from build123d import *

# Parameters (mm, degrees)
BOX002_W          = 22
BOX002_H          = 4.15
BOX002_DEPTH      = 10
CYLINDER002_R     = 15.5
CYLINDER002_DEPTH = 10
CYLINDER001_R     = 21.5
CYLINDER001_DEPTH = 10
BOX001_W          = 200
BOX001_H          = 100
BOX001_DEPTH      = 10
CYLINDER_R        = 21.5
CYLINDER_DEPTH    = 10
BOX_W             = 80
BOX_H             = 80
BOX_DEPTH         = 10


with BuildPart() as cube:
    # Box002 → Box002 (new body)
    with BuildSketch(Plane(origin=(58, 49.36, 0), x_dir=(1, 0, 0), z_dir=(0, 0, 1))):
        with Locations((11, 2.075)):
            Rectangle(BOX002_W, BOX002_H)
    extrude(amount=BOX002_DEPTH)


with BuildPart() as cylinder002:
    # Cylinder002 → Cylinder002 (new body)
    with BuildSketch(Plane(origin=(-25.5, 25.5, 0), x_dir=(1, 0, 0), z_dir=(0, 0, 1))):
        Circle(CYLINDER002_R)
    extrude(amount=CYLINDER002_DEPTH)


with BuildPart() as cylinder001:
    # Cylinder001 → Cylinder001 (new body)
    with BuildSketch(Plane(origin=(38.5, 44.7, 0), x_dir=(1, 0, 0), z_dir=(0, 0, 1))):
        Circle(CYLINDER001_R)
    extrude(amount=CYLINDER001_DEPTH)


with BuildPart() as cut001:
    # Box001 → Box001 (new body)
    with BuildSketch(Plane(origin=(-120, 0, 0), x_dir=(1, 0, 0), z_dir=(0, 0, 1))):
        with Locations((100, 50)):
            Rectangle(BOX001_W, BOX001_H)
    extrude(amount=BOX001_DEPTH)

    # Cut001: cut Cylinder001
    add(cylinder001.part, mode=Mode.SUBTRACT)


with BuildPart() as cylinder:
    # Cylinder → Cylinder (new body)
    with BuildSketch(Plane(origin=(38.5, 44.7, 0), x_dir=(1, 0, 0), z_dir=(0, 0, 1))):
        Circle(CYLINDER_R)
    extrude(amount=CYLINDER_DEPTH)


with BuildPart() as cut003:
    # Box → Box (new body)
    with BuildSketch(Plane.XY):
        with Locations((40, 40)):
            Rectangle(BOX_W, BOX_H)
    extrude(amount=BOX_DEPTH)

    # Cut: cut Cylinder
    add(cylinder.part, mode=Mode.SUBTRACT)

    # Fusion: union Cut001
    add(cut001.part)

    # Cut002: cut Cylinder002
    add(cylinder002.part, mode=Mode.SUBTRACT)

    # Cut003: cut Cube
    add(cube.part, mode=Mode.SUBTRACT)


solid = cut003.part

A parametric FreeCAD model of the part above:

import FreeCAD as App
import Part
import Sketcher
Q = App.Units.Quantity

doc = App.newDocument("Part")
body = doc.addObject("PartDesign::Body", "Body")

# Sketch on XY plane
sketch1 = body.newObject("Sketcher::SketchObject", "Sketch")
sketch1.AttachmentSupport = (doc.getObject("XY_Plane"), [""])
sketch1.MapMode = "FlatFace"
sketch1.addGeometry(Part.LineSegment(App.Vector(58, 53.5, 0), App.Vector(58, 49.4, 0)), False)
sketch1.addGeometry(Part.LineSegment(App.Vector(58, 49.4, 0), App.Vector(80, 49.4, 0)), False)
sketch1.addGeometry(Part.LineSegment(App.Vector(80, 49.4, 0), App.Vector(80, 53.5, 0)), False)
sketch1.addGeometry(Part.LineSegment(App.Vector(80, 53.5, 0), App.Vector(58, 53.5, 0)), False)
sketch1.addConstraint(Sketcher.Constraint("Coincident", 0, 2, 1, 1))
sketch1.addConstraint(Sketcher.Constraint("Coincident", 1, 2, 2, 1))
sketch1.addConstraint(Sketcher.Constraint("Coincident", 2, 2, 3, 1))
sketch1.addConstraint(Sketcher.Constraint("Coincident", 3, 2, 0, 1))
sketch1.addConstraint(Sketcher.Constraint("Vertical", 0))
sketch1.addConstraint(Sketcher.Constraint("Horizontal", 1))
sketch1.addConstraint(Sketcher.Constraint("Vertical", 2))
sketch1.addConstraint(Sketcher.Constraint("Horizontal", 3))
sketch1.addConstraint(Sketcher.Constraint("DistanceX", 1, 1, 1, 2, Q("22 mm")))
sketch1.addConstraint(Sketcher.Constraint("DistanceX", -1, 1, 0, 2, Q("58 mm")))
sketch1.addConstraint(Sketcher.Constraint("DistanceY", 0, 2, 0, 1, Q("4.15 mm")))
sketch1.addConstraint(Sketcher.Constraint("DistanceY", -1, 1, 0, 2, Q("49.36 mm")))
pad1 = body.newObject("PartDesign::Pad", "Pad")
pad1.Profile = sketch1
pad1.Length = 10
body2 = doc.addObject("PartDesign::Body", "Body001")

# Sketch on XY plane
sketch2 = body2.newObject("Sketcher::SketchObject", "Sketch001")
sketch2.AttachmentSupport = (doc.getObject("XY_Plane001"), [""])
sketch2.MapMode = "FlatFace"
sketch2.addGeometry(Part.Circle(App.Vector(-26, 26, 0), App.Vector(0, 0, 1), 16), False)
sketch2.addConstraint(Sketcher.Constraint("Diameter", 0, Q("31 mm")))
sketch2.addConstraint(Sketcher.Constraint("DistanceX", 0, 3, -1, 1, Q("25.5 mm")))
sketch2.addConstraint(Sketcher.Constraint("DistanceY", -1, 1, 0, 3, Q("25.5 mm")))
pad2 = body2.newObject("PartDesign::Pad", "Pad001")
pad2.Profile = sketch2
pad2.Length = 10
body3 = doc.addObject("PartDesign::Body", "Body002")

# Sketch on XY plane
sketch3 = body3.newObject("Sketcher::SketchObject", "Sketch002")
sketch3.AttachmentSupport = (doc.getObject("XY_Plane002"), [""])
sketch3.MapMode = "FlatFace"
sketch3.addGeometry(Part.Circle(App.Vector(38, 45, 0), App.Vector(0, 0, 1), 22), False)
sketch3.addConstraint(Sketcher.Constraint("Diameter", 0, Q("43 mm")))
sketch3.addConstraint(Sketcher.Constraint("DistanceX", -1, 1, 0, 3, Q("38.5 mm")))
sketch3.addConstraint(Sketcher.Constraint("DistanceY", -1, 1, 0, 3, Q("44.7 mm")))
pad3 = body3.newObject("PartDesign::Pad", "Pad002")
pad3.Profile = sketch3
pad3.Length = 10
body4 = doc.addObject("PartDesign::Body", "Body003")

# Sketch on XY plane
sketch4 = body4.newObject("Sketcher::SketchObject", "Sketch003")
sketch4.AttachmentSupport = (doc.getObject("XY_Plane003"), [""])
sketch4.MapMode = "FlatFace"
sketch4.addGeometry(Part.LineSegment(App.Vector(-120, 100, 0), App.Vector(-120, 0, 0)), False)
sketch4.addGeometry(Part.LineSegment(App.Vector(-120, 0, 0), App.Vector(80, 0, 0)), False)
sketch4.addGeometry(Part.LineSegment(App.Vector(80, 0, 0), App.Vector(80, 100, 0)), False)
sketch4.addGeometry(Part.LineSegment(App.Vector(80, 100, 0), App.Vector(-120, 100, 0)), False)
sketch4.addConstraint(Sketcher.Constraint("Coincident", 0, 2, 1, 1))
sketch4.addConstraint(Sketcher.Constraint("Coincident", 1, 2, 2, 1))
sketch4.addConstraint(Sketcher.Constraint("Coincident", 2, 2, 3, 1))
sketch4.addConstraint(Sketcher.Constraint("Coincident", 3, 2, 0, 1))
sketch4.addConstraint(Sketcher.Constraint("Vertical", 0))
sketch4.addConstraint(Sketcher.Constraint("Horizontal", 1))
sketch4.addConstraint(Sketcher.Constraint("Vertical", 2))
sketch4.addConstraint(Sketcher.Constraint("Horizontal", 3))
sketch4.addConstraint(Sketcher.Constraint("PointOnObject", 0, 2, -1))
sketch4.addConstraint(Sketcher.Constraint("DistanceX", 1, 1, 1, 2, Q("200 mm")))
sketch4.addConstraint(Sketcher.Constraint("DistanceY", 0, 2, 0, 1, Q("100 mm")))
sketch4.addConstraint(Sketcher.Constraint("DistanceX", 0, 2, -1, 1, Q("120 mm")))
pad4 = body4.newObject("PartDesign::Pad", "Pad003")
pad4.Profile = sketch4
pad4.Length = 10
doc.recompute()

boolean = body4.newObject("PartDesign::Boolean", "Boolean")
boolean.Type = "Cut"
boolean.addObjects([body3])
body5 = doc.addObject("PartDesign::Body", "Body004")

# Sketch on XY plane
sketch5 = body5.newObject("Sketcher::SketchObject", "Sketch004")
sketch5.AttachmentSupport = (doc.getObject("XY_Plane004"), [""])
sketch5.MapMode = "FlatFace"
sketch5.addGeometry(Part.Circle(App.Vector(38, 45, 0), App.Vector(0, 0, 1), 22), False)
sketch5.addConstraint(Sketcher.Constraint("Diameter", 0, Q("43 mm")))
sketch5.addConstraint(Sketcher.Constraint("DistanceX", -1, 1, 0, 3, Q("38.5 mm")))
sketch5.addConstraint(Sketcher.Constraint("DistanceY", -1, 1, 0, 3, Q("44.7 mm")))
pad5 = body5.newObject("PartDesign::Pad", "Pad004")
pad5.Profile = sketch5
pad5.Length = 10
body6 = doc.addObject("PartDesign::Body", "Body005")

# Sketch on XY plane
sketch6 = body6.newObject("Sketcher::SketchObject", "Sketch005")
sketch6.AttachmentSupport = (doc.getObject("XY_Plane005"), [""])
sketch6.MapMode = "FlatFace"
sketch6.addGeometry(Part.LineSegment(App.Vector(0, 80, 0), App.Vector(0, 0, 0)), False)
sketch6.addGeometry(Part.LineSegment(App.Vector(0, 0, 0), App.Vector(80, 0, 0)), False)
sketch6.addGeometry(Part.LineSegment(App.Vector(80, 0, 0), App.Vector(80, 80, 0)), False)
sketch6.addGeometry(Part.LineSegment(App.Vector(80, 80, 0), App.Vector(0, 80, 0)), False)
sketch6.addConstraint(Sketcher.Constraint("Coincident", 0, 2, 1, 1))
sketch6.addConstraint(Sketcher.Constraint("Coincident", 1, 2, 2, 1))
sketch6.addConstraint(Sketcher.Constraint("Coincident", 2, 2, 3, 1))
sketch6.addConstraint(Sketcher.Constraint("Coincident", 3, 2, 0, 1))
sketch6.addConstraint(Sketcher.Constraint("Vertical", 0))
sketch6.addConstraint(Sketcher.Constraint("Horizontal", 1))
sketch6.addConstraint(Sketcher.Constraint("Vertical", 2))
sketch6.addConstraint(Sketcher.Constraint("Horizontal", 3))
sketch6.addConstraint(Sketcher.Constraint("Coincident", 0, 2, -1, 1))
sketch6.addConstraint(Sketcher.Constraint("Equal", 3, 0))
sketch6.addConstraint(Sketcher.Constraint("DistanceX", 1, 1, 1, 2, Q("80 mm")))
pad6 = body6.newObject("PartDesign::Pad", "Pad005")
pad6.Profile = sketch6
pad6.Length = 10
doc.recompute()

boolean2 = body6.newObject("PartDesign::Boolean", "Boolean001")
boolean2.Type = "Cut"
boolean2.addObjects([body5])
doc.recompute()

boolean3 = body6.newObject("PartDesign::Boolean", "Boolean002")
boolean3.Type = "Fuse"
boolean3.addObjects([body4])
doc.recompute()

boolean4 = body6.newObject("PartDesign::Boolean", "Boolean003")
boolean4.Type = "Cut"
boolean4.addObjects([body2])
doc.recompute()

boolean5 = body6.newObject("PartDesign::Boolean", "Boolean004")
boolean5.Type = "Cut"
boolean5.addObjects([body])

doc.recompute()
